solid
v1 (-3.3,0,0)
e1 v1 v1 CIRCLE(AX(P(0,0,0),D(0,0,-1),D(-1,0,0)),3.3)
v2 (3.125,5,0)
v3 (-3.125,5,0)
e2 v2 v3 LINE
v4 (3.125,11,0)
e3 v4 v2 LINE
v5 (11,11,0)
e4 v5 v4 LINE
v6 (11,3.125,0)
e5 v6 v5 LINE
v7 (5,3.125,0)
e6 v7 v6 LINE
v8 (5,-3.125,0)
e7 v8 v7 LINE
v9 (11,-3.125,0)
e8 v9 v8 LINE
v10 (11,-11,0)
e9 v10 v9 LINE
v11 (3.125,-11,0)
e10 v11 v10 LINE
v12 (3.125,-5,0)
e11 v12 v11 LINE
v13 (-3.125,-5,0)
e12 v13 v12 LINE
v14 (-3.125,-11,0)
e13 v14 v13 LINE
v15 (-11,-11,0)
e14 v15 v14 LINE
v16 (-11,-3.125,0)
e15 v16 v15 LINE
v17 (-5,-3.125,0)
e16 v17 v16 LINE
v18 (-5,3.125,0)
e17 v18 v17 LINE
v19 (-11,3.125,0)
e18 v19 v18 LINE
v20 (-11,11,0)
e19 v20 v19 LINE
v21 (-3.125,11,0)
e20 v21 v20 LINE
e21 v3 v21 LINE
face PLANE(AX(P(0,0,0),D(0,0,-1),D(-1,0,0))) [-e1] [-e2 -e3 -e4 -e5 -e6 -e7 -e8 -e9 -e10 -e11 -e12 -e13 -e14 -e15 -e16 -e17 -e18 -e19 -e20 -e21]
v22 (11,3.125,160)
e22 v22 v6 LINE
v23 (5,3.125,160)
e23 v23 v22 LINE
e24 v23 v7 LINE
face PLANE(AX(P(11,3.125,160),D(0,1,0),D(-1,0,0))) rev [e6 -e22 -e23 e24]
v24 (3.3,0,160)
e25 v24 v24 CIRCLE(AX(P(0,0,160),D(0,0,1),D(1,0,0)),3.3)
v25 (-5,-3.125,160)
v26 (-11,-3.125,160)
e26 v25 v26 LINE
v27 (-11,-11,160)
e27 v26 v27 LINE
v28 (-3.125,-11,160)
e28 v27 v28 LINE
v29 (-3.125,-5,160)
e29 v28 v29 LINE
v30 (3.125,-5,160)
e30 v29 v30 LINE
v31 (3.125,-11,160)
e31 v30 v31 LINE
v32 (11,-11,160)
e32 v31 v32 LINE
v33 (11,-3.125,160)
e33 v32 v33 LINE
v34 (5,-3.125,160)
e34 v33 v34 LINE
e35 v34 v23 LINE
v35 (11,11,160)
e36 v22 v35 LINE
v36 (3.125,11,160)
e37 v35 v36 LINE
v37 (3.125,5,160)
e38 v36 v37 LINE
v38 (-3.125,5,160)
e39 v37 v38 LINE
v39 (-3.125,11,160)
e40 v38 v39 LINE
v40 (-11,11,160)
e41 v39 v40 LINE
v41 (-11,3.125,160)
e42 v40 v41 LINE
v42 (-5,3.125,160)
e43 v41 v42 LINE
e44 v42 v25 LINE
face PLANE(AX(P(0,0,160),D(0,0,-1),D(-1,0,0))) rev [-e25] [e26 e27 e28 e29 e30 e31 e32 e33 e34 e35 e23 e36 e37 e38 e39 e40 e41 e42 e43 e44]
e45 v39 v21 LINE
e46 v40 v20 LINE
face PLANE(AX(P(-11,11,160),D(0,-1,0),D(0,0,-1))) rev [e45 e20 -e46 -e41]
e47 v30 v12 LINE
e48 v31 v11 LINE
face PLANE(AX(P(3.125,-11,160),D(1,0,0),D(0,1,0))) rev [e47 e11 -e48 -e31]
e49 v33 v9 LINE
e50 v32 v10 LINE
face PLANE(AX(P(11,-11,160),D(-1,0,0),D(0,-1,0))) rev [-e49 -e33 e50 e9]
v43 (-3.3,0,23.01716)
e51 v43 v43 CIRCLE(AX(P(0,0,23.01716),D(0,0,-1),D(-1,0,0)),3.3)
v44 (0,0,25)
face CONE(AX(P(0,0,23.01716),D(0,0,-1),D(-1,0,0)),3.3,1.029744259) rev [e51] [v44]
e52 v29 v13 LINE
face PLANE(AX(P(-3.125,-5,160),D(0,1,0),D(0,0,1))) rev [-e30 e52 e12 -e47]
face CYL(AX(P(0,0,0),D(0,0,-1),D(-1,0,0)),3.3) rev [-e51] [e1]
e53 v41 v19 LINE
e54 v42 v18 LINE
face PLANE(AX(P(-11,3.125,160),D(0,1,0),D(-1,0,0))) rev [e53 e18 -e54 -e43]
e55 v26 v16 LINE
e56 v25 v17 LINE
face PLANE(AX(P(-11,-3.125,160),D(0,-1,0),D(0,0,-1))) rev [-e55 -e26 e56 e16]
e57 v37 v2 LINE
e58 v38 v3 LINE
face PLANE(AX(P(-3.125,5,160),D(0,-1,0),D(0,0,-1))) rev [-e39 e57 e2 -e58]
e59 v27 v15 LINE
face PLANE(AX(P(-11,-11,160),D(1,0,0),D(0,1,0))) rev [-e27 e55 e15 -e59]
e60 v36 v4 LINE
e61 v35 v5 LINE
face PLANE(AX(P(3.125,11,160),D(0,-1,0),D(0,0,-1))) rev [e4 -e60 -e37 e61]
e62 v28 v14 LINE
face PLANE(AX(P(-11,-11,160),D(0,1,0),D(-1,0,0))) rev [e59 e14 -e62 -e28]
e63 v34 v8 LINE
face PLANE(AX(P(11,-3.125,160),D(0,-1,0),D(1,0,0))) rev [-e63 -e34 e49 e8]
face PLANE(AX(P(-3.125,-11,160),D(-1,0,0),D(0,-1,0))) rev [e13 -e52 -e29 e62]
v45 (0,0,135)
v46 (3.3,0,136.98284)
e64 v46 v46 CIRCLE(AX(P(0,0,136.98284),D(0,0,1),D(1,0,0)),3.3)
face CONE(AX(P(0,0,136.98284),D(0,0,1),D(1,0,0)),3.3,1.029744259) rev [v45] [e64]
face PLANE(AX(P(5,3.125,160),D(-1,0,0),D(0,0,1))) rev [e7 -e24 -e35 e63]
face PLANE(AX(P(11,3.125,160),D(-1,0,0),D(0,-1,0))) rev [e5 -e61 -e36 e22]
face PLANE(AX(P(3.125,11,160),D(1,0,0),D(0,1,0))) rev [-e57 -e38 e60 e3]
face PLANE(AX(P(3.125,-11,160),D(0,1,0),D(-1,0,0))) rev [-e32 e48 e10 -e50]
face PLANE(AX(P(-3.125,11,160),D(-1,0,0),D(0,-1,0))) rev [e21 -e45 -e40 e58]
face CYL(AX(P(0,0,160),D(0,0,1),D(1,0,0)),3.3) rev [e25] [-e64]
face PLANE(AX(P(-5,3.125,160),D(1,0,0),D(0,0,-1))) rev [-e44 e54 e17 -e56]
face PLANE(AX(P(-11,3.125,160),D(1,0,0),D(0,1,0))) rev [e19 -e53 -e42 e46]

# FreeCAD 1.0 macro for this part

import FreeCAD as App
import Part
import Sketcher
Q = App.Units.Quantity

doc = App.newDocument("Part")
body = doc.addObject("PartDesign::Body", "Body")

sketch1 = doc.addObject("Sketcher::SketchObject", "Sketch")
body.addObject(sketch1)
sketch1.AttachmentSupport = (doc.XY_Plane, [""])
sketch1.MapMode = "FlatFace"
sketch1.addGeometry(Part.LineSegment(App.Vector(11, 11, 0), App.Vector(3.125, 11, 0)), False)
sketch1.addGeometry(Part.LineSegment(App.Vector(3.125, 11, 0), App.Vector(3.125, 5, 0)), False)
sketch1.addGeometry(Part.LineSegment(App.Vector(3.125, 5, 0), App.Vector(-3.125, 5, 0)), False)
sketch1.addGeometry(Part.LineSegment(App.Vector(-3.125, 5, 0), App.Vector(-3.125, 11, 0)), False)
sketch1.addGeometry(Part.LineSegment(App.Vector(-3.125, 11, 0), App.Vector(-11, 11, 0)), False)
sketch1.addGeometry(Part.LineSegment(App.Vector(-11, 11, 0), App.Vector(-11, 3.125, 0)), False)
sketch1.addGeometry(Part.LineSegment(App.Vector(-11, 3.125, 0), App.Vector(-5, 3.125, 0)), False)
sketch1.addGeometry(Part.LineSegment(App.Vector(-5, 3.125, 0), App.Vector(-5, -3.125, 0)), False)
sketch1.addGeometry(Part.LineSegment(App.Vector(-5, -3.125, 0), App.Vector(-11, -3.125, 0)), False)
sketch1.addGeometry(Part.LineSegment(App.Vector(-11, -3.125, 0), App.Vector(-11, -11, 0)), False)
sketch1.addGeometry(Part.LineSegment(App.Vector(-11, -11, 0), App.Vector(-3.125, -11, 0)), False)
sketch1.addGeometry(Part.LineSegment(App.Vector(-3.125, -11, 0), App.Vector(-3.125, -5, 0)), False)
sketch1.addGeometry(Part.LineSegment(App.Vector(-3.125, -5, 0), App.Vector(3.125, -5, 0)), False)
sketch1.addGeometry(Part.LineSegment(App.Vector(3.125, -5, 0), App.Vector(3.125, -11, 0)), False)
sketch1.addGeometry(Part.LineSegment(App.Vector(3.125, -11, 0), App.Vector(11, -11, 0)), False)
sketch1.addGeometry(Part.LineSegment(App.Vector(11, -11, 0), App.Vector(11, -3.125, 0)), False)
sketch1.addGeometry(Part.LineSegment(App.Vector(11, -3.125, 0), App.Vector(5, -3.125, 0)), False)
sketch1.addGeometry(Part.LineSegment(App.Vector(5, -3.125, 0), App.Vector(5, 3.125, 0)), False)
sketch1.addGeometry(Part.LineSegment(App.Vector(5, 3.125, 0), App.Vector(11, 3.125, 0)), False)
sketch1.addGeometry(Part.LineSegment(App.Vector(11, 3.125, 0), App.Vector(11, 11, 0)), False)
sketch1.addConstraint(Sketcher.Constraint("Coincident", 0, 2, 1, 1))
sketch1.addConstraint(Sketcher.Constraint("Coincident", 1, 2, 2, 1))
sketch1.addConstraint(Sketcher.Constraint("Coincident", 2, 2, 3, 1))
sketch1.addConstraint(Sketcher.Constraint("Coincident", 3, 2, 4, 1))
sketch1.addConstraint(Sketcher.Constraint("Coincident", 4, 2, 5, 1))
sketch1.addConstraint(Sketcher.Constraint("Coincident", 5, 2, 6, 1))
sketch1.addConstraint(Sketcher.Constraint("Coincident", 6, 2, 7, 1))
sketch1.addConstraint(Sketcher.Constraint("Coincident", 7, 2, 8, 1))
sketch1.addConstraint(Sketcher.Constraint("Coincident", 8, 2, 9, 1))
sketch1.addConstraint(Sketcher.Constraint("Coincident", 9, 2, 10, 1))
sketch1.addConstraint(Sketcher.Constraint("Coincident", 10, 2, 11, 1))
sketch1.addConstraint(Sketcher.Constraint("Coincident", 11, 2, 12, 1))
sketch1.addConstraint(Sketcher.Constraint("Coincident", 12, 2, 13, 1))
sketch1.addConstraint(Sketcher.Constraint("Coincident", 13, 2, 14, 1))
sketch1.addConstraint(Sketcher.Constraint("Coincident", 14, 2, 15, 1))
sketch1.addConstraint(Sketcher.Constraint("Coincident", 15, 2, 16, 1))
sketch1.addConstraint(Sketcher.Constraint("Coincident", 16, 2, 17, 1))
sketch1.addConstraint(Sketcher.Constraint("Coincident", 17, 2, 18, 1))
sketch1.addConstraint(Sketcher.Constraint("Coincident", 18, 2, 19, 1))
sketch1.addConstraint(Sketcher.Constraint("Coincident", 19, 2, 0, 1))
sketch1.addConstraint(Sketcher.Constraint("Horizontal", 0))
sketch1.addConstraint(Sketcher.Constraint("Vertical", 1))
sketch1.addConstraint(Sketcher.Constraint("Horizontal", 2))
sketch1.addConstraint(Sketcher.Constraint("Vertical", 3))
sketch1.addConstraint(Sketcher.Constraint("Horizontal", 4))
sketch1.addConstraint(Sketcher.Constraint("Vertical", 5))
sketch1.addConstraint(Sketcher.Constraint("Horizontal", 6))
sketch1.addConstraint(Sketcher.Constraint("Vertical", 7))
sketch1.addConstraint(Sketcher.Constraint("Horizontal", 8))
sketch1.addConstraint(Sketcher.Constraint("Vertical", 9))
sketch1.addConstraint(Sketcher.Constraint("Horizontal", 10))
sketch1.addConstraint(Sketcher.Constraint("Vertical", 11))
sketch1.addConstraint(Sketcher.Constraint("Horizontal", 12))
sketch1.addConstraint(Sketcher.Constraint("Vertical", 13))
sketch1.addConstraint(Sketcher.Constraint("Horizontal", 14))
sketch1.addConstraint(Sketcher.Constraint("Vertical", 15))
sketch1.addConstraint(Sketcher.Constraint("Horizontal", 16))
sketch1.addConstraint(Sketcher.Constraint("Vertical", 17))
sketch1.addConstraint(Sketcher.Constraint("Horizontal", 18))
sketch1.addConstraint(Sketcher.Constraint("Vertical", 19))
sketch1.addConstraint(Sketcher.Constraint("Symmetric", 0, 2, 10, 2, -1, 1))
sketch1.addConstraint(Sketcher.Constraint("Symmetric", 2, 2, 12, 2, -1, 1))
sketch1.addConstraint(Sketcher.Constraint("Symmetric", 4, 2, 14, 2, -1, 1))
sketch1.addConstraint(Sketcher.Constraint("Symmetric", 6, 2, 16, 2, -1, 1))
sketch1.addConstraint(Sketcher.Constraint("Symmetric", 8, 2, 18, 2, -1, 1))
sketch1.addConstraint(Sketcher.Constraint("Symmetric", 0, 2, 3, 2, -2))
sketch1.addConstraint(Sketcher.Constraint("Symmetric", 8, 2, 15, 2, -2))
sketch1.addConstraint(Sketcher.Constraint("Equal", 18, 1))
sketch1.addConstraint(Sketcher.Constraint("Equal", 14, 5))
sketch1.addConstraint(Sketcher.Constraint("Equal", 12, 7))
sketch1.addConstraint(Sketcher.Constraint("DistanceX", 6, 1, 6, 2, Q("6 mm")))
sketch1.addConstraint(Sketcher.Constraint("DistanceY", -1, 1, 0, 2, Q("11 mm")))
sketch1.addConstraint(Sketcher.Constraint("DistanceX", 2, 2, 2, 1, Q("6.25 mm")))
pad1 = doc.addObject("PartDesign::Pad", "Pad")
body.addObject(pad1)
pad1.Profile = sketch1
pad1.Length = 160

sketch2 = doc.addObject("Sketcher::SketchObject", "Sketch001")
body.addObject(sketch2)
sketch2.AttachmentSupport = (doc.YZ_Plane, [""])
sketch2.MapMode = "FlatFace"
sketch2.addGeometry(Part.LineSegment(App.Vector(0, 135, 0), App.Vector(0, 160, 0)), False)
sketch2.addGeometry(Part.LineSegment(App.Vector(0, 160, 0), App.Vector(-3.3, 160, 0)), False)
sketch2.addGeometry(Part.LineSegment(App.Vector(-3.3, 160, 0), App.Vector(-3.3, 136.98284, 0)), False)
sketch2.addGeometry(Part.LineSegment(App.Vector(-3.3, 136.98284, 0), App.Vector(0, 135, 0)), False)
sketch2.addConstraint(Sketcher.Constraint("Coincident", 0, 2, 1, 1))
sketch2.addConstraint(Sketcher.Constraint("Coincident", 1, 2, 2, 1))
sketch2.addConstraint(Sketcher.Constraint("Coincident", 2, 2, 3, 1))
sketch2.addConstraint(Sketcher.Constraint("Coincident", 3, 2, 0, 1))
sketch2.addConstraint(Sketcher.Constraint("Vertical", 0))
sketch2.addConstraint(Sketcher.Constraint("Horizontal", 1))
sketch2.addConstraint(Sketcher.Constraint("Vertical", 2))
sketch2.addConstraint(Sketcher.Constraint("PointOnObject", 0, 2, -2))
sketch2.addConstraint(Sketcher.Constraint("DistanceY", 0, 1, 0, 2, Q("25 mm")))
sketch2.addConstraint(Sketcher.Constraint("Angle", 3, Q("-31 deg")))
sketch2.addConstraint(Sketcher.Constraint("DistanceX", 1, 2, 1, 1, Q("3.3 mm")))
sketch2.addConstraint(Sketcher.Constraint("DistanceY", -1, 1, 0, 2, Q("160 mm")))
groove = doc.addObject("PartDesign::Groove", "Groove")
body.addObject(groove)
groove.Profile = sketch2
groove.ReferenceAxis = (sketch2, ["V_Axis"])
groove.Angle = 360
doc.recompute()

datumplane = doc.addObject("PartDesign::Plane", "DatumPlane")
body.addObject(datumplane)
datumplane.AttachmentSupport = (doc.XY_Plane, [""])
datumplane.MapMode = "FlatFace"
datumplane.AttachmentOffset = App.Placement(App.Vector(0, 0, 80), App.Rotation())
mirrored = doc.addObject("PartDesign::Mirrored", "Mirrored")
body.addObject(mirrored)
mirrored.Originals = [groove]
mirrored.MirrorPlane = (datumplane, [""])
body.Tip = mirrored

doc.recompute()
